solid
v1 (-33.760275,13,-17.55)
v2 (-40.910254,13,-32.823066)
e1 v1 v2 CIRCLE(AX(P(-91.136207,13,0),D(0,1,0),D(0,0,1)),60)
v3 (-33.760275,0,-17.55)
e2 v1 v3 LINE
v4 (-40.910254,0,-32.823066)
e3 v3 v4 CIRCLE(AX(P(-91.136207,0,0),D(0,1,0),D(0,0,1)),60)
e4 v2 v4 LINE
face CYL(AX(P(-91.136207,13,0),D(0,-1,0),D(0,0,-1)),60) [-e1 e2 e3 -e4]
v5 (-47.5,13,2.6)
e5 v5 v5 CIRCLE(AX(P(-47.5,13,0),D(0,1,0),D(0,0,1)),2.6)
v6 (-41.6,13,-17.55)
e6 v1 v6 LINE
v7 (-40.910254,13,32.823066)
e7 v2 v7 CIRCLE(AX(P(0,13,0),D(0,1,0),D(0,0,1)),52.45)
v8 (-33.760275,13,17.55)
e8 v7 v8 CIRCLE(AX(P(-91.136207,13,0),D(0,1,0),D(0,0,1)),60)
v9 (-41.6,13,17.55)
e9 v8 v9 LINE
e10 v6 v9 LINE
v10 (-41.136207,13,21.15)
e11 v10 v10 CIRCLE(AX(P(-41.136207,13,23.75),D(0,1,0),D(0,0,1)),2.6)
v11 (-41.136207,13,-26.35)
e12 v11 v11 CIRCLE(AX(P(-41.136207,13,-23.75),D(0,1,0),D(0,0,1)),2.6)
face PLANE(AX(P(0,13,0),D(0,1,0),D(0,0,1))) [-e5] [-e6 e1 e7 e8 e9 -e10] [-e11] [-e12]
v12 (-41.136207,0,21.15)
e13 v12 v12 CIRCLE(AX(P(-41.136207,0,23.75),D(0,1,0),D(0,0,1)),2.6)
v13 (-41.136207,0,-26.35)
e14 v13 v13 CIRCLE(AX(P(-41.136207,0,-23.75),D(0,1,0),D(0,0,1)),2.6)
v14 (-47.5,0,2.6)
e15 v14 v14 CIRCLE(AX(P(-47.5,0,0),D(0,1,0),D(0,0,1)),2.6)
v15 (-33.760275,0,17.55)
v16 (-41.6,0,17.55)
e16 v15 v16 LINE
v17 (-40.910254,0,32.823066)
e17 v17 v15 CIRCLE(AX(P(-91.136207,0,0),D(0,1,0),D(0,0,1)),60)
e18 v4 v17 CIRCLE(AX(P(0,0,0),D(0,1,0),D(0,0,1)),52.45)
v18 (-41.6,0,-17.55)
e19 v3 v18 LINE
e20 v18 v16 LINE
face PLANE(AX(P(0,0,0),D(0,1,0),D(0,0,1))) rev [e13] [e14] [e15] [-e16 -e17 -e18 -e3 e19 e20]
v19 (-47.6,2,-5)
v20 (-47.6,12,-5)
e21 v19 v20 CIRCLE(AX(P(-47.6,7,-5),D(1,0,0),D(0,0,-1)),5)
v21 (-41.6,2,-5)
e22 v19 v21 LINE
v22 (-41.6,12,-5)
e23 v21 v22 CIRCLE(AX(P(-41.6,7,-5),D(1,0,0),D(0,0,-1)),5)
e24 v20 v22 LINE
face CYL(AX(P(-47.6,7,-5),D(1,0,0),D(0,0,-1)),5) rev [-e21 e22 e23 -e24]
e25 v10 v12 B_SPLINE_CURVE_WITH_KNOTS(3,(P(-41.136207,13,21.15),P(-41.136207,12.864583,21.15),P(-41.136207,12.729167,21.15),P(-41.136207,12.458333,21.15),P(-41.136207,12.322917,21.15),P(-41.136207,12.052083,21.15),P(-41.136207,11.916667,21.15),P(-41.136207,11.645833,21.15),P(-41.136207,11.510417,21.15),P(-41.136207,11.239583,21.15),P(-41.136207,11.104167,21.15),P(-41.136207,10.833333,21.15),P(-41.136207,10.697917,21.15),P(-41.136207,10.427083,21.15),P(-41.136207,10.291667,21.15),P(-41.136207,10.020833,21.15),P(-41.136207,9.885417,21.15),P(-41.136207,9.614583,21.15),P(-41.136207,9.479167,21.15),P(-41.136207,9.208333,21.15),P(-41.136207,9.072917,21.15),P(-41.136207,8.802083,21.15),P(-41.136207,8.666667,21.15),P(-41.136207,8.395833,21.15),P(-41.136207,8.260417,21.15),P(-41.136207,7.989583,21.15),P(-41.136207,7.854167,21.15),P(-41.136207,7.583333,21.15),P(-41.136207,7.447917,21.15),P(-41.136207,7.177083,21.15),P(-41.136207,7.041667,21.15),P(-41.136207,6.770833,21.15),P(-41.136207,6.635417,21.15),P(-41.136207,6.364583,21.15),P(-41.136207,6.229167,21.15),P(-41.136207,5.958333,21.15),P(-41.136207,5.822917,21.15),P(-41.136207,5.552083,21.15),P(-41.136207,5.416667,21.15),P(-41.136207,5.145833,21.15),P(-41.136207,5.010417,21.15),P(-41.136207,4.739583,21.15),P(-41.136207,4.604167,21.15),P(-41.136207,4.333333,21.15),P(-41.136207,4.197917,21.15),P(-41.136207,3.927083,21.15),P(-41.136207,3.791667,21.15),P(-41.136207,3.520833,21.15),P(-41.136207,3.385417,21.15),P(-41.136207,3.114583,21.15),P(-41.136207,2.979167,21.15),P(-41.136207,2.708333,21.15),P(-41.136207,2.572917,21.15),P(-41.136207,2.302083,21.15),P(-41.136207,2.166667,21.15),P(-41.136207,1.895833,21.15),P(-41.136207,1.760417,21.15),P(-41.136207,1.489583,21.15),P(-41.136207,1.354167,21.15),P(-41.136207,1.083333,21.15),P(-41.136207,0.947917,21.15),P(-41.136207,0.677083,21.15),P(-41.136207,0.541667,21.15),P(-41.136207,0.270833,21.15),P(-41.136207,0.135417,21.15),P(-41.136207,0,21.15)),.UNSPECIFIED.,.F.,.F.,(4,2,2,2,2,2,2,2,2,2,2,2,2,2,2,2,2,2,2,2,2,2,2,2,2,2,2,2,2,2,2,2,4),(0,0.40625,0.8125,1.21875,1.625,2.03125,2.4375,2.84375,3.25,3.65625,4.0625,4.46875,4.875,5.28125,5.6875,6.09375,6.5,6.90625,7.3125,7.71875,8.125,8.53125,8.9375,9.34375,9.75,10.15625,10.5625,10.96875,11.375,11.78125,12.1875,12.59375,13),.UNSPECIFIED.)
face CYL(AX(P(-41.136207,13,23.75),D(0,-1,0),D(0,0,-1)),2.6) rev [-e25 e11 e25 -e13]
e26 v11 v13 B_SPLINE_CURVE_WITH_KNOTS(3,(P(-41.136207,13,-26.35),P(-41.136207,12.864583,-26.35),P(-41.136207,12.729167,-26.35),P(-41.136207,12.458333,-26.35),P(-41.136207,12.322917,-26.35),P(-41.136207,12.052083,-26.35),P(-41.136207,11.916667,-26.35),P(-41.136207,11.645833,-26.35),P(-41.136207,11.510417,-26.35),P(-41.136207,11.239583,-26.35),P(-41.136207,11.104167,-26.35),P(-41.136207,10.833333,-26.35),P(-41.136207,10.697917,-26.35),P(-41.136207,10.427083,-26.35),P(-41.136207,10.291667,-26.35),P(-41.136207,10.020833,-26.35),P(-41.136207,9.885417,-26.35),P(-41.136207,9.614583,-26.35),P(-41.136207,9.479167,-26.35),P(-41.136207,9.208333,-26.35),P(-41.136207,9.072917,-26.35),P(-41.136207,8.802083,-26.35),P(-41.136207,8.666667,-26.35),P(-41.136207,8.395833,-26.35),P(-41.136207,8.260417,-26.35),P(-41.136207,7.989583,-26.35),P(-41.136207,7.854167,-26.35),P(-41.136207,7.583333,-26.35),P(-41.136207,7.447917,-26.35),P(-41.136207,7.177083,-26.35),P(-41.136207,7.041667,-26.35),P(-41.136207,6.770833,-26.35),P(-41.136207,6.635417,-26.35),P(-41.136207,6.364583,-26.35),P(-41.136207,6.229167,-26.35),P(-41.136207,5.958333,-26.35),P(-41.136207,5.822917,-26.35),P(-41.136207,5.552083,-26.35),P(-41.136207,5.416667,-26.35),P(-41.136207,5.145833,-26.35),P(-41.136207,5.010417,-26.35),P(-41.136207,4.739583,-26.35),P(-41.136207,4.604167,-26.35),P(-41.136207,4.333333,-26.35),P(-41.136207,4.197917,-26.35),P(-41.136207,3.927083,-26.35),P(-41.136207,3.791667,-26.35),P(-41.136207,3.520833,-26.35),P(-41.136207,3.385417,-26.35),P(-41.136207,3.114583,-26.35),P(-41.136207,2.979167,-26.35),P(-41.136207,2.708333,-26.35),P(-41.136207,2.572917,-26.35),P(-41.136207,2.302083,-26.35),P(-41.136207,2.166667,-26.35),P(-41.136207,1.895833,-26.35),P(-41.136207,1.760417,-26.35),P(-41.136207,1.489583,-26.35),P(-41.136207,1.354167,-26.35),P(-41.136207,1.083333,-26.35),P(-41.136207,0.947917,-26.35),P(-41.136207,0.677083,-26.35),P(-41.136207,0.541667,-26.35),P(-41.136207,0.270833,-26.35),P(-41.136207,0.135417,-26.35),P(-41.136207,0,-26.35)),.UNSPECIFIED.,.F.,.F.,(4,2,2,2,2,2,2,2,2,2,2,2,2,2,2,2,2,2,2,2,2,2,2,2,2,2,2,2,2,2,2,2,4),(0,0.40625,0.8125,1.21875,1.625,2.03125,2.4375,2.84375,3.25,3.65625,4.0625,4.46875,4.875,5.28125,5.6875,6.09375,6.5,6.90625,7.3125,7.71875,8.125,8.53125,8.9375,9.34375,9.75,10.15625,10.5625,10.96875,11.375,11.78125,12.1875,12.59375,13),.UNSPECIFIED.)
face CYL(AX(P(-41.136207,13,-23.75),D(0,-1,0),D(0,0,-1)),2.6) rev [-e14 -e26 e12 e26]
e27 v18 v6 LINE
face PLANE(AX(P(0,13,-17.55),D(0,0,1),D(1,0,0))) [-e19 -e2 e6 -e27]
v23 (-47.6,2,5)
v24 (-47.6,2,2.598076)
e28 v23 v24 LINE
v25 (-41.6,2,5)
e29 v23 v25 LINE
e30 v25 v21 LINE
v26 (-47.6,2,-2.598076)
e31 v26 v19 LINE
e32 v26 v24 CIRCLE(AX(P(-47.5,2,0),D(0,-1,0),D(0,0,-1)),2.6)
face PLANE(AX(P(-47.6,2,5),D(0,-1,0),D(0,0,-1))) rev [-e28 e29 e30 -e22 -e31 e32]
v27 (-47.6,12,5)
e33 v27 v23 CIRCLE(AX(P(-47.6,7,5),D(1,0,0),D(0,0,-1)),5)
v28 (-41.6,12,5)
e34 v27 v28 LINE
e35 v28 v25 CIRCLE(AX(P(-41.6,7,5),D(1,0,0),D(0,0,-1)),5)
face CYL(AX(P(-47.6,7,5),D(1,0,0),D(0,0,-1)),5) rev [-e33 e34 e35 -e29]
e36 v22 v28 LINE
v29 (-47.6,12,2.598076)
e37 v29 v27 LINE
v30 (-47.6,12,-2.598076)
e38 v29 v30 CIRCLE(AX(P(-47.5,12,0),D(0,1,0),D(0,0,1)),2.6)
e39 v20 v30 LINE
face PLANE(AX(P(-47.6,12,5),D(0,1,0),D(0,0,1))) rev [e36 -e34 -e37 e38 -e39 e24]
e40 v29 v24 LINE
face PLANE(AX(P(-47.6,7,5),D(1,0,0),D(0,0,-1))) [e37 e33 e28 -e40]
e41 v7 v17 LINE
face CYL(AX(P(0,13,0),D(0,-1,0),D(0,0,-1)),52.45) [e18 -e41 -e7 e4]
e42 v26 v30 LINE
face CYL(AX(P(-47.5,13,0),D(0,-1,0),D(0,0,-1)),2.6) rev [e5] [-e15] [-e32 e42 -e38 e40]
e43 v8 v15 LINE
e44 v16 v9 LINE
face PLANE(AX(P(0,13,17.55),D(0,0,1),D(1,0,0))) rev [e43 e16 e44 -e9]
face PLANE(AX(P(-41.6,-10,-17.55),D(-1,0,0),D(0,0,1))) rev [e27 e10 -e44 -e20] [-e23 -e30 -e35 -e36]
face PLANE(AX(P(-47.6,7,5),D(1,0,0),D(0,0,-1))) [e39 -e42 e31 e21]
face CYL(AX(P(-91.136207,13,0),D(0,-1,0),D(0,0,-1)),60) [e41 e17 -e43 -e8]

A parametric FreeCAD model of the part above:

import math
import FreeCAD as App
import Part
import Sketcher
from FreeCAD import Vector
Q = App.Units.Quantity


def add_polygon(sketch, points):
    """Adds a closed chain of lines whose ends are joined by coincident constraints."""
    first, n = sketch.GeometryCount, len(points)
    for a, b in zip(points, points[1:] + points[:1]):
        sketch.addGeometry(Part.LineSegment(App.Vector(*a, 0), App.Vector(*b, 0)), False)
    for i in range(n):
        sketch.addConstraint(Sketcher.Constraint("Coincident", first + i, 2, first + (i + 1) % n, 1))

doc = App.newDocument("Part")
body = doc.addObject("PartDesign::Body", "Body")

# Sketch on XZ plane
sketch1 = body.newObject("Sketcher::SketchObject", "Sketch")
sketch1.AttachmentSupport = (doc.getObject("XZ_Plane"), [""])
sketch1.MapMode = "FlatFace"
sketch1.addGeometry([
    Part.LineSegment(Vector(-33.8, 17.6, 0), Vector(-41, 17.6, 0)),  # 0
    Part.LineSegment(Vector(-41, 17.6, 0), Vector(-41, -17.6, 0)),  # 1
    Part.LineSegment(Vector(-41, -17.6, 0), Vector(-33.8, -17.6, 0)),  # 2
    Part.ArcOfCircle(Part.Circle(Vector(-91.1, 0, 0), Vector(0, 0, 1), 60), math.radians(-33.16), math.radians(-17.01)),  # 3
    Part.ArcOfCircle(Part.Circle(Vector(0, 0, 0), Vector(0, 0, 1), 52.5), math.radians(141), math.radians(219)),  # 4
    Part.ArcOfCircle(Part.Circle(Vector(-91.1, 0, 0), Vector(0, 0, 1), 60), math.radians(17.01), math.radians(33.16)),  # 5
    Part.Circle(Vector(-41.1, 23.8, 0), Vector(0, 0, 1), 2.6),  # 6
    Part.Circle(Vector(-47.5, 0, 0), Vector(0, 0, 1), 2.6),  # 7
    Part.Circle(Vector(-41.1, -23.8, 0), Vector(0, 0, 1), 2.6),  # 8
], False)
sketch1.addConstraint([
    Sketcher.Constraint("Coincident", 0, 2, 1, 1),
    Sketcher.Constraint("Coincident", 1, 2, 2, 1),
    Sketcher.Constraint("Coincident", 2, 2, 3, 2),
    Sketcher.Constraint("Coincident", 3, 1, 4, 2),
    Sketcher.Constraint("Coincident", 4, 1, 5, 2),
    Sketcher.Constraint("Coincident", 5, 1, 0, 1),
    Sketcher.Constraint("Horizontal", 0),
    Sketcher.Constraint("Vertical", 1),
    Sketcher.Constraint("Horizontal", 2),
    Sketcher.Constraint("Coincident", 4, 3, -1, 1),
    Sketcher.Constraint("Coincident", 5, 3, 3, 3),
    Sketcher.Constraint("Equal", 3, 5),
    Sketcher.Constraint("Equal", 6, 7),
    Sketcher.Constraint("Equal", 7, 8),
    Sketcher.Constraint("Symmetric", 6, 3, 8, 3, -1),
    Sketcher.Constraint("Symmetric", 2, 2, 5, 1, -1),
    Sketcher.Constraint("PointOnObject", 7, 3, -1),
    Sketcher.Constraint("Radius", 3, Q("60 mm")),
    Sketcher.Constraint("Diameter", 6, Q("5.2 mm")),
    Sketcher.Constraint("Radius", 4, Q("52.45 mm")),
    Sketcher.Constraint("DistanceY", 1, 2, 1, 1, Q("35.1 mm")),
    Sketcher.Constraint("DistanceX", 0, 2, -1, 1, Q("41 mm")),
    Sketcher.Constraint("DistanceX", 5, 3, 6, 3, Q("50 mm")),
    Sketcher.Constraint("DistanceX", 7, 3, -1, 1, Q("47.5 mm")),
    Sketcher.Constraint("DistanceY", 8, 3, 6, 3, Q("47.5 mm")),
    Sketcher.Constraint("DistanceX", 0, 2, 0, 1, Q("7.239725 mm")),
])
pad1 = body.newObject("PartDesign::Pad", "Pad")
pad1.Profile = sketch1
pad1.Length = 13
pad1.Reversed = True

# Sketch on XZ plane
sketch2 = body.newObject("Sketcher::SketchObject", "Sketch001")
sketch2.AttachmentSupport = (doc.getObject("XZ_Plane"), [""])
sketch2.MapMode = "FlatFace"
sketch2.AttachmentOffset = App.Placement(Vector(0, 0, -13), App.Rotation())
add_polygon(sketch2, [(-41.6, -17.6), (-41.6, 17.6), (-41, 17.6), (-41, -17.6)])  # lines 0-3
sketch2.addConstraint([
    Sketcher.Constraint("Vertical", 0),
    Sketcher.Constraint("Horizontal", 1),
    Sketcher.Constraint("Vertical", 2),
    Sketcher.Constraint("Horizontal", 3),
    Sketcher.Constraint("DistanceX", 1, 1, 1, 2, Q("0.6 mm")),
    Sketcher.Constraint("DistanceY", 0, 1, 0, 2, Q("35.1 mm")),
    Sketcher.Constraint("DistanceX", 1, 2, -1, 1, Q("41 mm")),
    Sketcher.Constraint("DistanceY", -1, 1, 0, 2, Q("17.55 mm")),
])
pocket1 = body.newObject("PartDesign::Pocket", "Pocket")
pocket1.Profile = sketch2
pocket1.Length = 23
pocket1.Reversed = True

# Sketch on YZ plane
sketch3 = body.newObject("Sketcher::SketchObject", "Sketch002")
sketch3.AttachmentSupport = (doc.getObject("YZ_Plane"), [""])
sketch3.MapMode = "FlatFace"
sketch3.AttachmentOffset = App.Placement(Vector(0, 0, -41.6), App.Rotation())
sketch3.addGeometry([
    Part.LineSegment(Vector(12, -5, 0), Vector(12, 5, 0)),
    Part.ArcOfCircle(Part.Circle(Vector(7, 5, 0), Vector(0, 0, 1), 5), math.radians(0), math.radians(180)),
    Part.LineSegment(Vector(2, 5, 0), Vector(2, -5, 0)),
    Part.ArcOfCircle(Part.Circle(Vector(7, -5, 0), Vector(0, 0, 1), 5), math.radians(180), math.radians(360)),
], False)
sketch3.addConstraint([
    Sketcher.Constraint("Tangent", 0, 2, 1, 1),
    Sketcher.Constraint("Tangent", 1, 2, 2, 1),
    Sketcher.Constraint("Tangent", 2, 2, 3, 1),
    Sketcher.Constraint("Tangent", 3, 2, 0, 1),
    Sketcher.Constraint("Vertical", 0),
    Sketcher.Constraint("Vertical", 2),
    Sketcher.Constraint("Radius", 1, Q("5 mm")),
    Sketcher.Constraint("DistanceY", 0, 1, 0, 2, Q("10 mm")),
    Sketcher.Constraint("DistanceX", -1, 1, 1, 3, Q("7 mm")),
    Sketcher.Constraint("DistanceY", -1, 1, 1, 3, Q("5 mm")),
])
pocket2 = body.newObject("PartDesign::Pocket", "Pocket001")
pocket2.Profile = sketch3
pocket2.Length = 6

doc.recompute()
